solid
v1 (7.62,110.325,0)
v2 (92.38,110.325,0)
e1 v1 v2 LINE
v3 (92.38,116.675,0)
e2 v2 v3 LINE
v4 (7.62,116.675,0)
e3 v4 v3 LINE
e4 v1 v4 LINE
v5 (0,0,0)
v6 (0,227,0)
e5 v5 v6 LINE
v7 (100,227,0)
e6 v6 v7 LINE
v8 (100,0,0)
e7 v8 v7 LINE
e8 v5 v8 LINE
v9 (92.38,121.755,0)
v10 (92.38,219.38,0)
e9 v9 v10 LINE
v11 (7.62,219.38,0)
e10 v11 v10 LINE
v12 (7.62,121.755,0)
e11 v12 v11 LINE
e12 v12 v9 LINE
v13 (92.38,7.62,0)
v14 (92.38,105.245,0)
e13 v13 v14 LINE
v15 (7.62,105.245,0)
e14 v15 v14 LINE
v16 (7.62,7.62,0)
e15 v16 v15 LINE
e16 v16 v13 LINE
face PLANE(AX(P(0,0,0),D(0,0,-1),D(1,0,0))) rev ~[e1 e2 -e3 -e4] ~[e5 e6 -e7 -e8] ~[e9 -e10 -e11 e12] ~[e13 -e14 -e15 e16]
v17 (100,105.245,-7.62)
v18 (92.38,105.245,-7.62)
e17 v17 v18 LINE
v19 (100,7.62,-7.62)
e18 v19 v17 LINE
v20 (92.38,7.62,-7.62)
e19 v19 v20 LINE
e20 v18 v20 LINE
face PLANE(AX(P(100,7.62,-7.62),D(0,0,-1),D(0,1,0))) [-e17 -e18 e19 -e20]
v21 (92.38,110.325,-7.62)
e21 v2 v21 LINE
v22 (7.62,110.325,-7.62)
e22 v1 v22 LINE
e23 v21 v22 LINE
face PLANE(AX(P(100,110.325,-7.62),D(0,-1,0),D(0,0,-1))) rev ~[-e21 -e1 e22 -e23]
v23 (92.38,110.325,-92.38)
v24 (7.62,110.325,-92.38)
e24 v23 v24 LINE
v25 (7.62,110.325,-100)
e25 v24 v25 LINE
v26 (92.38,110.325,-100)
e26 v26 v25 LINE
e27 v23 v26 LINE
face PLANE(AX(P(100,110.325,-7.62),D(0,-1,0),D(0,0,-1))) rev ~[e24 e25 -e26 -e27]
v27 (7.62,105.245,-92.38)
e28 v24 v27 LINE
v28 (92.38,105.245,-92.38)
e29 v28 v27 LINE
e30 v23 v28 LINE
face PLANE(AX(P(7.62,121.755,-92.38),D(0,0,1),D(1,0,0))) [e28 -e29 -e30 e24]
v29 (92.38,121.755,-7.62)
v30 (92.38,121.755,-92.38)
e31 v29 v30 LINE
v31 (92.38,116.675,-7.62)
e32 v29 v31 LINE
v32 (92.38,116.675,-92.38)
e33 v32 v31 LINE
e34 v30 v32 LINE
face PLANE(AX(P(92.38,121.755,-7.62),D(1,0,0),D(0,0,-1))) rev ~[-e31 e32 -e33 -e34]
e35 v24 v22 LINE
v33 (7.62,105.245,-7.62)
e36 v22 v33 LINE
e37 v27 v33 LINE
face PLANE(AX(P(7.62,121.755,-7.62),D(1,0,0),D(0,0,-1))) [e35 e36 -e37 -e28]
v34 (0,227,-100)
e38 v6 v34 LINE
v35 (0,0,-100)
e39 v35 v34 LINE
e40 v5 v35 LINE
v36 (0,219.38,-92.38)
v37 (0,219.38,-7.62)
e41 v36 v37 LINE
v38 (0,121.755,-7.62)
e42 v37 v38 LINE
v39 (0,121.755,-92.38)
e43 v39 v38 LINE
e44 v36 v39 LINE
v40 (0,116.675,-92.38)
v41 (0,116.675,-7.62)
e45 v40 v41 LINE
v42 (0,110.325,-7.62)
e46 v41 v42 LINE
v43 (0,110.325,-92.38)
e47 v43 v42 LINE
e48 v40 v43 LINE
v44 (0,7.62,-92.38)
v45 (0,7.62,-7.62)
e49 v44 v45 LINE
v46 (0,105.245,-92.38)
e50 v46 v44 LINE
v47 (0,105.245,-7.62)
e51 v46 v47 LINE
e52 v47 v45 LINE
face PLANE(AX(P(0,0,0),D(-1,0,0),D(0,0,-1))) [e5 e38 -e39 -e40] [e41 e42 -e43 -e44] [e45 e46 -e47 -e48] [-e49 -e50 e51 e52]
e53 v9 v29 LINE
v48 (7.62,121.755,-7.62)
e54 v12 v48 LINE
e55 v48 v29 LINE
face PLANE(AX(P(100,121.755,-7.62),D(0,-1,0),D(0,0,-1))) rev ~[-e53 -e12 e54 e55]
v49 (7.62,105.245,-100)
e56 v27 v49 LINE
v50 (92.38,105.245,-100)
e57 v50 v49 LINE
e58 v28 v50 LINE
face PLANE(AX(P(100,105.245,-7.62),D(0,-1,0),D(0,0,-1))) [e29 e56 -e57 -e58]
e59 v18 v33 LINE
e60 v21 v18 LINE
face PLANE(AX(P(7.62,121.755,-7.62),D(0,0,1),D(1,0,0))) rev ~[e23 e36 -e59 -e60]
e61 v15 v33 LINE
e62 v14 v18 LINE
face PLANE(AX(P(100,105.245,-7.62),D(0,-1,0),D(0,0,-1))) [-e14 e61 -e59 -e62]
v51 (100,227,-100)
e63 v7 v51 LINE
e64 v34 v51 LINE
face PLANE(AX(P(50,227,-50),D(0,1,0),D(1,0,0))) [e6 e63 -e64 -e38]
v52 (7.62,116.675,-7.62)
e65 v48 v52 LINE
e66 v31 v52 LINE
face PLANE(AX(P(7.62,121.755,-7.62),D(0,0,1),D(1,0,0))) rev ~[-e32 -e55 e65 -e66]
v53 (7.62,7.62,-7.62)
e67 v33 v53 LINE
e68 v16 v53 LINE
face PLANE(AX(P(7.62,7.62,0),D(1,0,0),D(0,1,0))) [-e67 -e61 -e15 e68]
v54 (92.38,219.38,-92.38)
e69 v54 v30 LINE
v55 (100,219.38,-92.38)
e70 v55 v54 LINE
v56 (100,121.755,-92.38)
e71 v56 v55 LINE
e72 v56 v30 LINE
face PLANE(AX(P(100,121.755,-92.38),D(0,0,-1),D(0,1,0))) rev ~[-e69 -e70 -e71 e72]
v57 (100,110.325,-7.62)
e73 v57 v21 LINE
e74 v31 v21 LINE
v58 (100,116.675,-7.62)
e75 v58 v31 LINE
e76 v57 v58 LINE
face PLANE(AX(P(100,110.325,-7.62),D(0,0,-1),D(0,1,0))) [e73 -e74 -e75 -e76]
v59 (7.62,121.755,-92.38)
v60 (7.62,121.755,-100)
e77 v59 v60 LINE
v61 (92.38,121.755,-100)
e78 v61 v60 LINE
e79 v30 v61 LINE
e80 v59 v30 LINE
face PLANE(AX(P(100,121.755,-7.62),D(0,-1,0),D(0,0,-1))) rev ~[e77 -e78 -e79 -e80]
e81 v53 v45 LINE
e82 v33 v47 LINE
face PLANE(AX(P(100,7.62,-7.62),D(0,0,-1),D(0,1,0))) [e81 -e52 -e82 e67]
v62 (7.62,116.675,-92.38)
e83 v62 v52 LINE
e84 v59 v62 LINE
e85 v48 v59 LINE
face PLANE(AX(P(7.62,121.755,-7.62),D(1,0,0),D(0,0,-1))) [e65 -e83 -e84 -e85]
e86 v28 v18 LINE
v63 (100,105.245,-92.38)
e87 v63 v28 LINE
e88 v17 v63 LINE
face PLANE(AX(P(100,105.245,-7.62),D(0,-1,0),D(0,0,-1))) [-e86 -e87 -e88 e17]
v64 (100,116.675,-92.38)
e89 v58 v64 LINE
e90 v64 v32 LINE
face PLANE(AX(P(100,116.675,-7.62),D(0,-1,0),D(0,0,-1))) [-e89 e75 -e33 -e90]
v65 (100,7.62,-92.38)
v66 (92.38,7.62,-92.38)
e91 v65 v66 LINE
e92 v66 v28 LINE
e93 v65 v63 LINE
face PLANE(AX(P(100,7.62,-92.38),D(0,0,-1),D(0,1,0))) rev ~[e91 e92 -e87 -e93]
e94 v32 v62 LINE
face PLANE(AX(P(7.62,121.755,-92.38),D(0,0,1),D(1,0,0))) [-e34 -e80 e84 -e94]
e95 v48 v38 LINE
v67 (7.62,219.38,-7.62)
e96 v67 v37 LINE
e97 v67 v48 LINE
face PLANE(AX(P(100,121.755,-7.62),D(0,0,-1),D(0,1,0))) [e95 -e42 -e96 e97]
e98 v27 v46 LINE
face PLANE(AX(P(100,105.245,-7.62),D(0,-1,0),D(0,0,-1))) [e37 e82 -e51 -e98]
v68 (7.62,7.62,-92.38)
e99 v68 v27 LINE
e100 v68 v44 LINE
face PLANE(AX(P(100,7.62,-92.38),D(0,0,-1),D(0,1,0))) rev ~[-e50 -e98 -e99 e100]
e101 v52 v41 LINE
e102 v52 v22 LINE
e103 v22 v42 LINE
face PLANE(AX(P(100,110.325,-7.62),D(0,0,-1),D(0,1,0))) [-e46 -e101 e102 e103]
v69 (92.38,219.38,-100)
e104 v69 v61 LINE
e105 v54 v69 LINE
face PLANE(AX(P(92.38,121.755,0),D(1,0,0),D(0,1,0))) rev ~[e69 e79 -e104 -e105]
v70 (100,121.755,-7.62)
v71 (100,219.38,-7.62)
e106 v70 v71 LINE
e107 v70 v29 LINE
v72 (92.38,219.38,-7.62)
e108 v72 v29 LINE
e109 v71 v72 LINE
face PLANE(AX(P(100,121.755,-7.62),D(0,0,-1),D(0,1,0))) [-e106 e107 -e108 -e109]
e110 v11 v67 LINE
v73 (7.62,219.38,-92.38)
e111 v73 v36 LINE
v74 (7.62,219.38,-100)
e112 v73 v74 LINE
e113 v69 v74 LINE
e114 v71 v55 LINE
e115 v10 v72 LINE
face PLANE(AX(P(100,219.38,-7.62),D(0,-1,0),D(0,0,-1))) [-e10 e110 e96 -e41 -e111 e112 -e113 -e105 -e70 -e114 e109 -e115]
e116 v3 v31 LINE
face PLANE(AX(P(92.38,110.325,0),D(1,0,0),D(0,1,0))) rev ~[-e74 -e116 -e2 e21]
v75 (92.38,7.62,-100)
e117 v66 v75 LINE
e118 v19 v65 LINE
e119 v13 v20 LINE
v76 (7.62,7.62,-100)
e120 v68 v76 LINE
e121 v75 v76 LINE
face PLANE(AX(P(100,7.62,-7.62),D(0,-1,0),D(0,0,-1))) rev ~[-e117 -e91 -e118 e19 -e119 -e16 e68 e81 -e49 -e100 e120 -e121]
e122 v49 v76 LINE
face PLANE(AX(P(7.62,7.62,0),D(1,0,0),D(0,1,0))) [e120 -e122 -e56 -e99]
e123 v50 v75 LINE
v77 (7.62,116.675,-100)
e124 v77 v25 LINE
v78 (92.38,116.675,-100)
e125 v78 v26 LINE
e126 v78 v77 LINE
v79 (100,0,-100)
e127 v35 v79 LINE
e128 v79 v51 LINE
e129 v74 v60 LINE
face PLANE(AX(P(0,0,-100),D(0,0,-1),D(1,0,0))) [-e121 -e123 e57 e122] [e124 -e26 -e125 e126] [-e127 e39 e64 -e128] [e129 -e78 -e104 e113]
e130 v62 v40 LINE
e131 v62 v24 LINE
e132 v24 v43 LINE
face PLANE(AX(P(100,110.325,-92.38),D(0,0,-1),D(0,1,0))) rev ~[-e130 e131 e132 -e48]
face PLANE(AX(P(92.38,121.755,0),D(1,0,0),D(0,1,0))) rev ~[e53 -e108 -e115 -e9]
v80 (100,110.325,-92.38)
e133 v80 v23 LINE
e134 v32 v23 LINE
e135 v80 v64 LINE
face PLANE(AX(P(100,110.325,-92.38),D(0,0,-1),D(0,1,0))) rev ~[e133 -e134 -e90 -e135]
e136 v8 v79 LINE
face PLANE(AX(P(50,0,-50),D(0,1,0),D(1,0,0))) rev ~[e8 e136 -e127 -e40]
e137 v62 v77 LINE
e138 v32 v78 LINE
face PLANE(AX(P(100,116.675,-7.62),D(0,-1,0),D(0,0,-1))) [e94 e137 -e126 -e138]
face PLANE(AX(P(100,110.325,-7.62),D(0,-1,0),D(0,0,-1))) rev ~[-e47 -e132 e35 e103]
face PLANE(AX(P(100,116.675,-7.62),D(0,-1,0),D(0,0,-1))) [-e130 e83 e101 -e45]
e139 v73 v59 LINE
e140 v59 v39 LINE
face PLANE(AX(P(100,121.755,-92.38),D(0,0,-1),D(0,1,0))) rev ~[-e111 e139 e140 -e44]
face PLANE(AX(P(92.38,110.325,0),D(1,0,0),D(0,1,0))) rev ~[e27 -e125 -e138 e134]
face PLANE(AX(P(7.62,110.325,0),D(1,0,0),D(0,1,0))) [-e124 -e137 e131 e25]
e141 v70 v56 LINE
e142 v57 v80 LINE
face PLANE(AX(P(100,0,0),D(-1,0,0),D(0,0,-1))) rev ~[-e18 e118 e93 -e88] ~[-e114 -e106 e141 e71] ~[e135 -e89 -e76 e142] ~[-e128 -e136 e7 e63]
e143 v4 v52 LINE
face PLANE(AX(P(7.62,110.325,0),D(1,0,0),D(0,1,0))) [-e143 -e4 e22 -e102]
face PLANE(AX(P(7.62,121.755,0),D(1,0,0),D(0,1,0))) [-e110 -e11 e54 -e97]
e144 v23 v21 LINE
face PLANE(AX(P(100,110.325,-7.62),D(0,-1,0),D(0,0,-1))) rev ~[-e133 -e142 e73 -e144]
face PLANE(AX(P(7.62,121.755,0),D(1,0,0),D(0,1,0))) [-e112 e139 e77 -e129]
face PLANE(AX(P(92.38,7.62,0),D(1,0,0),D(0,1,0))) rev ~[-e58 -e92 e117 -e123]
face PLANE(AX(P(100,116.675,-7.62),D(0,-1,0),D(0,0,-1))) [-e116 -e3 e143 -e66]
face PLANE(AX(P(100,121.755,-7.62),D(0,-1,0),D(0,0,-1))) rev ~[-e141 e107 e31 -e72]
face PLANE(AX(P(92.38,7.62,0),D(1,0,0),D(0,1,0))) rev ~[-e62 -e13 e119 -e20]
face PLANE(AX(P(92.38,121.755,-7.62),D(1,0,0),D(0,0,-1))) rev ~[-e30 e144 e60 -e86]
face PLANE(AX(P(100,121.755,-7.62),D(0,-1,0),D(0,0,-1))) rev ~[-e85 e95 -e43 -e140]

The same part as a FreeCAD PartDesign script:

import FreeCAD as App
import Part
import Sketcher
from FreeCAD import Vector
Q = App.Units.Quantity

doc = App.newDocument("Part")
body = doc.addObject("PartDesign::Body", "Body")

sketch1 = doc.addObject("Sketcher::SketchObject", "Sketch")
body.addObject(sketch1)
sketch1.AttachmentSupport = (doc.XZ_Plane, [""])
sketch1.MapMode = "FlatFace"
sketch1.addGeometry([
    Part.LineSegment(Vector(0, -100, 0), Vector(0, 0, 0)),
    Part.LineSegment(Vector(0, 0, 0), Vector(100, 0, 0)),
    Part.LineSegment(Vector(100, 0, 0), Vector(100, -100, 0)),
    Part.LineSegment(Vector(100, -100, 0), Vector(0, -100, 0)),
], False)
sketch1.addConstraint([
    Sketcher.Constraint("Coincident", 0, 2, 1, 1),
    Sketcher.Constraint("Coincident", 1, 2, 2, 1),
    Sketcher.Constraint("Coincident", 2, 2, 3, 1),
    Sketcher.Constraint("Coincident", 3, 2, 0, 1),
    Sketcher.Constraint("Vertical", 0),
    Sketcher.Constraint("Horizontal", 1),
    Sketcher.Constraint("Vertical", 2),
    Sketcher.Constraint("Horizontal", 3),
    Sketcher.Constraint("Coincident", 0, 2, -1, 1),
    Sketcher.Constraint("Equal", 3, 0),
    Sketcher.Constraint("DistanceX", 1, 1, 1, 2, Q("100 mm")),
])
pad1 = doc.addObject("PartDesign::Pad", "Pad")
body.addObject(pad1)
pad1.Profile = sketch1
pad1.Length = 227
pad1.Reversed = True

sketch2 = doc.addObject("Sketcher::SketchObject", "Sketch001")
body.addObject(sketch2)
sketch2.AttachmentSupport = (doc.YZ_Plane, [""])
sketch2.MapMode = "FlatFace"
sketch2.AttachmentOffset = App.Placement(Vector(0, 0, 100), App.Rotation())
sketch2.addGeometry([
    Part.LineSegment(Vector(105.245, -7.62, 0), Vector(7.62, -7.62, 0)),
    Part.LineSegment(Vector(7.62, -7.62, 0), Vector(7.62, -92.38, 0)),
    Part.LineSegment(Vector(7.62, -92.38, 0), Vector(105.245, -92.38, 0)),
    Part.LineSegment(Vector(105.245, -92.38, 0), Vector(105.245, -7.62, 0)),
    Part.LineSegment(Vector(116.675, -7.62, 0), Vector(110.325, -7.62, 0)),
    Part.LineSegment(Vector(110.325, -7.62, 0), Vector(110.325, -92.38, 0)),
    Part.LineSegment(Vector(110.325, -92.38, 0), Vector(116.675, -92.38, 0)),
    Part.LineSegment(Vector(116.675, -92.38, 0), Vector(116.675, -7.62, 0)),
    Part.LineSegment(Vector(219.38, -7.62, 0), Vector(121.755, -7.62, 0)),
    Part.LineSegment(Vector(121.755, -7.62, 0), Vector(121.755, -92.38, 0)),
    Part.LineSegment(Vector(121.755, -92.38, 0), Vector(219.38, -92.38, 0)),
    Part.LineSegment(Vector(219.38, -92.38, 0), Vector(219.38, -7.62, 0)),
], False)
sketch2.addConstraint([
    Sketcher.Constraint("Coincident", 0, 2, 1, 1),
    Sketcher.Constraint("Coincident", 1, 2, 2, 1),
    Sketcher.Constraint("Coincident", 2, 2, 3, 1),
    Sketcher.Constraint("Coincident", 3, 2, 0, 1),
    Sketcher.Constraint("Coincident", 4, 2, 5, 1),
    Sketcher.Constraint("Coincident", 5, 2, 6, 1),
    Sketcher.Constraint("Coincident", 6, 2, 7, 1),
    Sketcher.Constraint("Coincident", 7, 2, 4, 1),
    Sketcher.Constraint("Coincident", 8, 2, 9, 1),
    Sketcher.Constraint("Coincident", 9, 2, 10, 1),
    Sketcher.Constraint("Coincident", 10, 2, 11, 1),
    Sketcher.Constraint("Coincident", 11, 2, 8, 1),
    Sketcher.Constraint("Horizontal", 0),
    Sketcher.Constraint("Vertical", 1),
    Sketcher.Constraint("Horizontal", 2),
    Sketcher.Constraint("Vertical", 3),
    Sketcher.Constraint("Horizontal", 4),
    Sketcher.Constraint("Vertical", 5),
    Sketcher.Constraint("Horizontal", 6),
    Sketcher.Constraint("Vertical", 7),
    Sketcher.Constraint("Horizontal", 8),
    Sketcher.Constraint("Vertical", 9),
    Sketcher.Constraint("Horizontal", 10),
    Sketcher.Constraint("Vertical", 11),
    Sketcher.Constraint("Horizontal", 3, 2, 4, 2),
    Sketcher.Constraint("Horizontal", 2, 2, 5, 2),
    Sketcher.Constraint("Horizontal", 7, 2, 8, 2),
    Sketcher.Constraint("Horizontal", 6, 2, 9, 2),
    Sketcher.Constraint("Equal", 2, 8),
    Sketcher.Constraint("DistanceX", 4, 2, 4, 1, Q("6.35 mm")),
    Sketcher.Constraint("DistanceY", 1, 2, 1, 1, Q("84.76 mm")),
    Sketcher.Constraint("DistanceX", 0, 2, 0, 1, Q("97.625 mm")),
    Sketcher.Constraint("DistanceX", -1, 1, 0, 2, Q("7.62 mm")),
    Sketcher.Constraint("DistanceY", 0, 2, -1, 1, Q("7.62 mm")),
    Sketcher.Constraint("DistanceX", -1, 1, 10, 2, Q("219.38 mm")),
    Sketcher.Constraint("DistanceX", 3, 2, 4, 2, Q("5.08 mm")),
])
pocket1 = doc.addObject("PartDesign::Pocket", "Pocket")
body.addObject(pocket1)
pocket1.Profile = sketch2
pocket1.Type = "ThroughAll"

sketch3 = doc.addObject("Sketcher::SketchObject", "Sketch002")
body.addObject(sketch3)
sketch3.AttachmentSupport = (doc.XY_Plane, [""])
sketch3.MapMode = "FlatFace"
sketch3.addGeometry([
    Part.LineSegment(Vector(7.62, 219.38, 0), Vector(7.62, 121.755, 0)),
    Part.LineSegment(Vector(7.62, 121.755, 0), Vector(92.38, 121.755, 0)),
    Part.LineSegment(Vector(92.38, 121.755, 0), Vector(92.38, 219.38, 0)),
    Part.LineSegment(Vector(92.38, 219.38, 0), Vector(7.62, 219.38, 0)),
    Part.LineSegment(Vector(7.62, 116.675, 0), Vector(7.62, 110.325, 0)),
    Part.LineSegment(Vector(7.62, 110.325, 0), Vector(92.38, 110.325, 0)),
    Part.LineSegment(Vector(92.38, 110.325, 0), Vector(92.38, 116.675, 0)),
    Part.LineSegment(Vector(92.38, 116.675, 0), Vector(7.62, 116.675, 0)),
    Part.LineSegment(Vector(7.62, 105.245, 0), Vector(7.62, 7.62, 0)),
    Part.LineSegment(Vector(7.62, 7.62, 0), Vector(92.38, 7.62, 0)),
    Part.LineSegment(Vector(92.38, 7.62, 0), Vector(92.38, 105.245, 0)),
    Part.LineSegment(Vector(92.38, 105.245, 0), Vector(7.62, 105.245, 0)),
], False)
sketch3.addConstraint([
    Sketcher.Constraint("Coincident", 0, 2, 1, 1),
    Sketcher.Constraint("Coincident", 1, 2, 2, 1),
    Sketcher.Constraint("Coincident", 2, 2, 3, 1),
    Sketcher.Constraint("Coincident", 3, 2, 0, 1),
    Sketcher.Constraint("Coincident", 4, 2, 5, 1),
    Sketcher.Constraint("Coincident", 5, 2, 6, 1),
    Sketcher.Constraint("Coincident", 6, 2, 7, 1),
    Sketcher.Constraint("Coincident", 7, 2, 4, 1),
    Sketcher.Constraint("Coincident", 8, 2, 9, 1),
    Sketcher.Constraint("Coincident", 9, 2, 10, 1),
    Sketcher.Constraint("Coincident", 10, 2, 11, 1),
    Sketcher.Constraint("Coincident", 11, 2, 8, 1),
    Sketcher.Constraint("Vertical", 0),
    Sketcher.Constraint("Horizontal", 1),
    Sketcher.Constraint("Vertical", 2),
    Sketcher.Constraint("Horizontal", 3),
    Sketcher.Constraint("Vertical", 4),
    Sketcher.Constraint("Horizontal", 5),
    Sketcher.Constraint("Vertical", 6),
    Sketcher.Constraint("Horizontal", 7),
    Sketcher.Constraint("Vertical", 8),
    Sketcher.Constraint("Horizontal", 9),
    Sketcher.Constraint("Vertical", 10),
    Sketcher.Constraint("Horizontal", 11),
    Sketcher.Constraint("Vertical", 3, 2, 4, 2),
    Sketcher.Constraint("Vertical", 2, 2, 5, 2),
    Sketcher.Constraint("Vertical", 7, 2, 8, 2),
    Sketcher.Constraint("Vertical", 6, 2, 9, 2),
    Sketcher.Constraint("Equal", 2, 8),
    Sketcher.Constraint("DistanceX", 1, 1, 1, 2, Q("84.76 mm")),
    Sketcher.Constraint("DistanceY", 4, 2, 4, 1, Q("6.35 mm")),
    Sketcher.Constraint("DistanceY", 0, 2, 0, 1, Q("97.625 mm")),
    Sketcher.Constraint("DistanceX", -1, 1, 0, 2, Q("7.62 mm")),
    Sketcher.Constraint("DistanceY", -1, 1, 2, 2, Q("219.38 mm")),
    Sketcher.Constraint("DistanceY", -1, 1, 8, 2, Q("7.62 mm")),
    Sketcher.Constraint("DistanceY", 4, 2, 0, 2, Q("11.43 mm")),
])
pocket2 = doc.addObject("PartDesign::Pocket", "Pocket001")
body.addObject(pocket2)
pocket2.Profile = sketch3
pocket2.Type = "ThroughAll"

sketch4 = doc.addObject("Sketcher::SketchObject", "Sketch003")
body.addObject(sketch4)
sketch4.AttachmentSupport = (doc.XZ_Plane, [""])
sketch4.MapMode = "FlatFace"
sketch4.AttachmentOffset = App.Placement(Vector(0, 0, -121.755), App.Rotation())
sketch4.addGeometry([
    Part.LineSegment(Vector(7.62, -92.38, 0), Vector(7.62, -7.62, 0)),
    Part.LineSegment(Vector(7.62, -7.62, 0), Vector(92.38, -7.62, 0)),
    Part.LineSegment(Vector(92.38, -7.62, 0), Vector(92.38, -92.38, 0)),
    Part.LineSegment(Vector(92.38, -92.38, 0), Vector(7.62, -92.38, 0)),
], False)
sketch4.addConstraint([
    Sketcher.Constraint("Coincident", 0, 2, 1, 1),
    Sketcher.Constraint("Coincident", 1, 2, 2, 1),
    Sketcher.Constraint("Coincident", 2, 2, 3, 1),
    Sketcher.Constraint("Coincident", 3, 2, 0, 1),
    Sketcher.Constraint("Vertical", 0),
    Sketcher.Constraint("Horizontal", 1),
    Sketcher.Constraint("Vertical", 2),
    Sketcher.Constraint("Horizontal", 3),
    Sketcher.Constraint("Equal", 3, 0),
    Sketcher.Constraint("DistanceX", 1, 1, 1, 2, Q("84.76 mm")),
    Sketcher.Constraint("DistanceX", -1, 1, 0, 2, Q("7.62 mm")),
    Sketcher.Constraint("DistanceY", 0, 2, -1, 1, Q("7.62 mm")),
])
pocket3 = doc.addObject("PartDesign::Pocket", "Pocket002")
body.addObject(pocket3)
pocket3.Profile = sketch4
pocket3.Length = 25.4
pocket3.Reversed = True

doc.recompute()
